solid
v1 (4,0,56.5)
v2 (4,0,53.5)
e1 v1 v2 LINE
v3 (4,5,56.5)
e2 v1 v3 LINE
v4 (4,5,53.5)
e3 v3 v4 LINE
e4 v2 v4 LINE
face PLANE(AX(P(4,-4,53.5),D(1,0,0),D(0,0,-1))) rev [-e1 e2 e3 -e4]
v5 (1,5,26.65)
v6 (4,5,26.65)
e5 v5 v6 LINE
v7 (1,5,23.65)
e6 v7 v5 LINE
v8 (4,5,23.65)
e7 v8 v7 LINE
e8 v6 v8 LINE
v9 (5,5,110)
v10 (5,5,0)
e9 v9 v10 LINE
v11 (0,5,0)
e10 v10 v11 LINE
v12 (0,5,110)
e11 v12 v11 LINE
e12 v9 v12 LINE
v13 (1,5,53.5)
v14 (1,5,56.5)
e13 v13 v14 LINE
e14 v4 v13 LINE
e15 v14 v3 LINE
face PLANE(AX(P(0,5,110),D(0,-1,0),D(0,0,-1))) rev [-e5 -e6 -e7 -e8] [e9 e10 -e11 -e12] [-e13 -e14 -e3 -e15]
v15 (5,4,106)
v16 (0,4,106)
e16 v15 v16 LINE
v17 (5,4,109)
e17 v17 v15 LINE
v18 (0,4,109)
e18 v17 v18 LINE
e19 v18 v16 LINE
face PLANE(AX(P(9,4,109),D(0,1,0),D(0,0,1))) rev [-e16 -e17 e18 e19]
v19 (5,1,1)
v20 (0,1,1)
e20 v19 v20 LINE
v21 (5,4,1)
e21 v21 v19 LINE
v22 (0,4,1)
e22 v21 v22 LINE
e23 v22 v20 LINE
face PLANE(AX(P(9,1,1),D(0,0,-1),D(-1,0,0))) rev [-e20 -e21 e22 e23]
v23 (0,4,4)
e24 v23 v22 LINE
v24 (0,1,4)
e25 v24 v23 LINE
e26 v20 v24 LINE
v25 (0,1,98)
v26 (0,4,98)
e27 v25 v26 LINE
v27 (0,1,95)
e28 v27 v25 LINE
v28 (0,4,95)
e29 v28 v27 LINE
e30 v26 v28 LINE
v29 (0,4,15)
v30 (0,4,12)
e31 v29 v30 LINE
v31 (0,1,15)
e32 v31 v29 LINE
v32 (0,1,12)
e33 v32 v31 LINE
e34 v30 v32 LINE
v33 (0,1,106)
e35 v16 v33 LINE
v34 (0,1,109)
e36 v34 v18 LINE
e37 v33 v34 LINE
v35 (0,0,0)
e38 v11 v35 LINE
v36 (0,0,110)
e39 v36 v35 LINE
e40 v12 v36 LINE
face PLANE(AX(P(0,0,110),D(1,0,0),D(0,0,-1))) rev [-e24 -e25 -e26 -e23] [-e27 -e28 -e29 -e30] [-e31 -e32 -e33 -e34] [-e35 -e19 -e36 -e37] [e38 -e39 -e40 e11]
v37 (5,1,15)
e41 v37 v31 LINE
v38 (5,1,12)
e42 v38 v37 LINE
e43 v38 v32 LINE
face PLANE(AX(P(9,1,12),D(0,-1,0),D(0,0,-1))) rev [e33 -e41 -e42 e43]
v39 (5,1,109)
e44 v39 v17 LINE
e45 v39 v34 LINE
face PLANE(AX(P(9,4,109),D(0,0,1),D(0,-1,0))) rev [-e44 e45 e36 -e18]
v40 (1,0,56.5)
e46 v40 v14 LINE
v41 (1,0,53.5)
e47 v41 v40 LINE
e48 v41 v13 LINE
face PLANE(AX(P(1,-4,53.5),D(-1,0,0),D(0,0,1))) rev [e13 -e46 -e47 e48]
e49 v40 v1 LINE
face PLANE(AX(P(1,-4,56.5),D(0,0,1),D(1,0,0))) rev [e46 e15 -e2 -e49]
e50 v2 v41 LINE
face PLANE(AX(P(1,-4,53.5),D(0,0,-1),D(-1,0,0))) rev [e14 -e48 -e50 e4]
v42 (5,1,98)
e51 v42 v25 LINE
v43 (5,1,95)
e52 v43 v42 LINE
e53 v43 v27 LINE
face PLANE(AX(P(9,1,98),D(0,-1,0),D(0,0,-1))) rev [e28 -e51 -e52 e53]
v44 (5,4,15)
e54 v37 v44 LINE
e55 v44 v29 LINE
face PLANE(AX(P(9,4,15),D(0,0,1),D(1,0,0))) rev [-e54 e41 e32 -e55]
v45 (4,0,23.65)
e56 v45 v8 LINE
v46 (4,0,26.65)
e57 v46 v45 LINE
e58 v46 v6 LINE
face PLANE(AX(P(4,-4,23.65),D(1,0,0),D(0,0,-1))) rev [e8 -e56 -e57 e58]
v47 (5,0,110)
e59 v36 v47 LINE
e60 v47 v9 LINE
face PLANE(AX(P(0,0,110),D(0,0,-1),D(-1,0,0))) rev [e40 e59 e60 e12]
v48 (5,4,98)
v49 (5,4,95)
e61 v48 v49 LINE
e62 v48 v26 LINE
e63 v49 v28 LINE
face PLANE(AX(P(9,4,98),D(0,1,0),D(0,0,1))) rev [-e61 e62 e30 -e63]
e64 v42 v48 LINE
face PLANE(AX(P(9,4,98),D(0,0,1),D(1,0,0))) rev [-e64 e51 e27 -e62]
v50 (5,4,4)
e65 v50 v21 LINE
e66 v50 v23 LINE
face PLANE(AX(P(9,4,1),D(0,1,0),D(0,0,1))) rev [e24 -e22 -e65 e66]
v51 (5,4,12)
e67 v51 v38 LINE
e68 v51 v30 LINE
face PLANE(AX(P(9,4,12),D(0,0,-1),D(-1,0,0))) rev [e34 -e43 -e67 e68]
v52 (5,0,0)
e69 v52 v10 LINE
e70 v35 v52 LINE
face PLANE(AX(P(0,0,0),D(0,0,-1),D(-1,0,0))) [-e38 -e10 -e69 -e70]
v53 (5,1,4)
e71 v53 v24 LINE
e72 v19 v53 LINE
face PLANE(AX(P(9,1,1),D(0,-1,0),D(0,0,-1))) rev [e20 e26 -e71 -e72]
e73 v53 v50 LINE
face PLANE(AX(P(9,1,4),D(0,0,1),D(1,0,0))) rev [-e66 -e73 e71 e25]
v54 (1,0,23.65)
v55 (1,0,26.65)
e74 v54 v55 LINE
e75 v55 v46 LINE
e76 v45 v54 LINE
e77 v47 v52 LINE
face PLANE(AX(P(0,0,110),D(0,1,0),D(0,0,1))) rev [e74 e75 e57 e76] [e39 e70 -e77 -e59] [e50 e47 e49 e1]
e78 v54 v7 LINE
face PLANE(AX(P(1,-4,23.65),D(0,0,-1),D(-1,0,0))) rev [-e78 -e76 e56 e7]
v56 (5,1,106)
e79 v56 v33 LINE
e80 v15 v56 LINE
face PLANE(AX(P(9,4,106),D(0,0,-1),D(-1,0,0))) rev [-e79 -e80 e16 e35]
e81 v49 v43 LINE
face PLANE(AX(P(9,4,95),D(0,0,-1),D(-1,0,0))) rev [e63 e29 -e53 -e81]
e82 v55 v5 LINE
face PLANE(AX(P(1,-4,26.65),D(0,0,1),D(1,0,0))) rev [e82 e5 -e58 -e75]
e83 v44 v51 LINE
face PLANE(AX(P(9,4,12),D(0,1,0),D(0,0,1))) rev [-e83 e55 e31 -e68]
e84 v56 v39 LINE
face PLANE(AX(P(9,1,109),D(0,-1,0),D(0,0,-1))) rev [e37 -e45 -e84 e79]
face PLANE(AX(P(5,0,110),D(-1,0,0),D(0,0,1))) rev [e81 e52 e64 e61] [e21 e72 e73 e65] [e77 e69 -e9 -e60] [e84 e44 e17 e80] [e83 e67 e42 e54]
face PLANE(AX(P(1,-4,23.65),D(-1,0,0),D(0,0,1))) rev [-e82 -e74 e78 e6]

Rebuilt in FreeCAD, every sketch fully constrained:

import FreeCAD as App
import Part
import Sketcher
from FreeCAD import Vector
Q = App.Units.Quantity


def add_polygon(sketch, points):
    """Adds a closed chain of lines whose ends are joined by coincident constraints."""
    first, n = sketch.GeometryCount, len(points)
    for a, b in zip(points, points[1:] + points[:1]):
        sketch.addGeometry(Part.LineSegment(App.Vector(*a, 0), App.Vector(*b, 0)), False)
    for i in range(n):
        sketch.addConstraint(Sketcher.Constraint("Coincident", first + i, 2, first + (i + 1) % n, 1))

doc = App.newDocument("Part")
body = doc.addObject("PartDesign::Body", "Body")

# Sketch on XY plane
sketch1 = body.newObject("Sketcher::SketchObject", "Sketch")
sketch1.AttachmentSupport = (doc.getObject("XY_Plane"), [""])
sketch1.MapMode = "FlatFace"
add_polygon(sketch1, [(0, 5), (0, 0), (5, 0), (5, 5)])  # lines 0-3
sketch1.addConstraint([
    Sketcher.Constraint("Vertical", 0),
    Sketcher.Constraint("Horizontal", 1),
    Sketcher.Constraint("Vertical", 2),
    Sketcher.Constraint("Horizontal", 3),
    Sketcher.Constraint("Coincident", 0, 2, -1, 1),
    Sketcher.Constraint("Equal", 3, 0),
    Sketcher.Constraint("DistanceX", 1, 1, 1, 2, Q("5 mm")),
])
pad1 = body.newObject("PartDesign::Pad", "Pad")
pad1.Profile = sketch1
pad1.Length = 110

# Sketch on YZ plane
sketch2 = body.newObject("Sketcher::SketchObject", "Sketch001")
sketch2.AttachmentSupport = (doc.getObject("YZ_Plane"), [""])
sketch2.MapMode = "FlatFace"
add_polygon(sketch2, [(4, 1), (1, 1), (1, 4), (4, 4)])  # lines 0-3
add_polygon(sketch2, [(4, 106), (1, 106), (1, 109), (4, 109)])  # lines 4-7
add_polygon(sketch2, [(4, 12), (1, 12), (1, 15), (4, 15)])  # lines 8-11
add_polygon(sketch2, [(4, 95), (1, 95), (1, 98), (4, 98)])  # lines 12-15
sketch2.addConstraint([
    Sketcher.Constraint("Horizontal", 0),
    Sketcher.Constraint("Vertical", 1),
    Sketcher.Constraint("Horizontal", 2),
    Sketcher.Constraint("Vertical", 3),
    Sketcher.Constraint("Horizontal", 4),
    Sketcher.Constraint("Vertical", 5),
    Sketcher.Constraint("Horizontal", 6),
    Sketcher.Constraint("Vertical", 7),
    Sketcher.Constraint("Horizontal", 8),
    Sketcher.Constraint("Vertical", 9),
    Sketcher.Constraint("Horizontal", 10),
    Sketcher.Constraint("Vertical", 11),
    Sketcher.Constraint("Horizontal", 12),
    Sketcher.Constraint("Vertical", 13),
    Sketcher.Constraint("Horizontal", 14),
    Sketcher.Constraint("Vertical", 15),
    Sketcher.Constraint("Vertical", 1, 2, 4, 2),
    Sketcher.Constraint("Vertical", 3, 2, 6, 2),
    Sketcher.Constraint("Vertical", 5, 2, 8, 2),
    Sketcher.Constraint("Vertical", 7, 2, 10, 2),
    Sketcher.Constraint("Vertical", 9, 2, 12, 2),
    Sketcher.Constraint("Vertical", 11, 2, 14, 2),
    Sketcher.Constraint("Equal", 14, 1),
    Sketcher.Constraint("Equal", 3, 5),
    Sketcher.Constraint("Equal", 7, 9),
    Sketcher.Constraint("Equal", 11, 13),
    Sketcher.Constraint("DistanceX", 0, 2, 0, 1, Q("3 mm")),
    Sketcher.Constraint("DistanceX", -1, 1, 0, 2, Q("1 mm")),
    Sketcher.Constraint("DistanceY", -1, 1, 0, 2, Q("1 mm")),
    Sketcher.Constraint("DistanceY", -1, 1, 4, 2, Q("106 mm")),
    Sketcher.Constraint("DistanceY", -1, 1, 8, 2, Q("12 mm")),
    Sketcher.Constraint("DistanceY", -1, 1, 12, 2, Q("95 mm")),
])
pocket1 = body.newObject("PartDesign::Pocket", "Pocket")
pocket1.Profile = sketch2
pocket1.Length = 9
pocket1.Reversed = True

# Sketch on XZ plane
sketch3 = body.newObject("Sketcher::SketchObject", "Sketch002")
sketch3.AttachmentSupport = (doc.getObject("XZ_Plane"), [""])
sketch3.MapMode = "FlatFace"
sketch3.AttachmentOffset = App.Placement(Vector(0, 0, -5), App.Rotation())
add_polygon(sketch3, [(1, 23.6), (1, 26.6), (4, 26.6), (4, 23.6)])  # lines 0-3
add_polygon(sketch3, [(1, 53.5), (1, 56.5), (4, 56.5), (4, 53.5)])  # lines 4-7
sketch3.addConstraint([
    Sketcher.Constraint("Vertical", 0),
    Sketcher.Constraint("Horizontal", 1),
    Sketcher.Constraint("Vertical", 2),
    Sketcher.Constraint("Horizontal", 3),
    Sketcher.Constraint("Vertical", 4),
    Sketcher.Constraint("Horizontal", 5),
    Sketcher.Constraint("Vertical", 6),
    Sketcher.Constraint("Horizontal", 7),
    Sketcher.Constraint("Vertical", 3, 2, 4, 2),
    Sketcher.Constraint("Vertical", 2, 2, 5, 2),
    Sketcher.Constraint("Equal", 7, 0),
    Sketcher.Constraint("Equal", 2, 4),
    Sketcher.Constraint("DistanceX", 1, 1, 1, 2, Q("3 mm")),
    Sketcher.Constraint("DistanceX", -1, 1, 0, 2, Q("1 mm")),
    Sketcher.Constraint("DistanceY", -1, 1, 4, 2, Q("56.5 mm")),
    Sketcher.Constraint("DistanceY", -1, 1, 0, 2, Q("26.65 mm")),
])
pocket2 = body.newObject("PartDesign::Pocket", "Pocket001")
pocket2.Profile = sketch3
pocket2.Length = 9
pocket2.Reversed = True

doc.recompute()
